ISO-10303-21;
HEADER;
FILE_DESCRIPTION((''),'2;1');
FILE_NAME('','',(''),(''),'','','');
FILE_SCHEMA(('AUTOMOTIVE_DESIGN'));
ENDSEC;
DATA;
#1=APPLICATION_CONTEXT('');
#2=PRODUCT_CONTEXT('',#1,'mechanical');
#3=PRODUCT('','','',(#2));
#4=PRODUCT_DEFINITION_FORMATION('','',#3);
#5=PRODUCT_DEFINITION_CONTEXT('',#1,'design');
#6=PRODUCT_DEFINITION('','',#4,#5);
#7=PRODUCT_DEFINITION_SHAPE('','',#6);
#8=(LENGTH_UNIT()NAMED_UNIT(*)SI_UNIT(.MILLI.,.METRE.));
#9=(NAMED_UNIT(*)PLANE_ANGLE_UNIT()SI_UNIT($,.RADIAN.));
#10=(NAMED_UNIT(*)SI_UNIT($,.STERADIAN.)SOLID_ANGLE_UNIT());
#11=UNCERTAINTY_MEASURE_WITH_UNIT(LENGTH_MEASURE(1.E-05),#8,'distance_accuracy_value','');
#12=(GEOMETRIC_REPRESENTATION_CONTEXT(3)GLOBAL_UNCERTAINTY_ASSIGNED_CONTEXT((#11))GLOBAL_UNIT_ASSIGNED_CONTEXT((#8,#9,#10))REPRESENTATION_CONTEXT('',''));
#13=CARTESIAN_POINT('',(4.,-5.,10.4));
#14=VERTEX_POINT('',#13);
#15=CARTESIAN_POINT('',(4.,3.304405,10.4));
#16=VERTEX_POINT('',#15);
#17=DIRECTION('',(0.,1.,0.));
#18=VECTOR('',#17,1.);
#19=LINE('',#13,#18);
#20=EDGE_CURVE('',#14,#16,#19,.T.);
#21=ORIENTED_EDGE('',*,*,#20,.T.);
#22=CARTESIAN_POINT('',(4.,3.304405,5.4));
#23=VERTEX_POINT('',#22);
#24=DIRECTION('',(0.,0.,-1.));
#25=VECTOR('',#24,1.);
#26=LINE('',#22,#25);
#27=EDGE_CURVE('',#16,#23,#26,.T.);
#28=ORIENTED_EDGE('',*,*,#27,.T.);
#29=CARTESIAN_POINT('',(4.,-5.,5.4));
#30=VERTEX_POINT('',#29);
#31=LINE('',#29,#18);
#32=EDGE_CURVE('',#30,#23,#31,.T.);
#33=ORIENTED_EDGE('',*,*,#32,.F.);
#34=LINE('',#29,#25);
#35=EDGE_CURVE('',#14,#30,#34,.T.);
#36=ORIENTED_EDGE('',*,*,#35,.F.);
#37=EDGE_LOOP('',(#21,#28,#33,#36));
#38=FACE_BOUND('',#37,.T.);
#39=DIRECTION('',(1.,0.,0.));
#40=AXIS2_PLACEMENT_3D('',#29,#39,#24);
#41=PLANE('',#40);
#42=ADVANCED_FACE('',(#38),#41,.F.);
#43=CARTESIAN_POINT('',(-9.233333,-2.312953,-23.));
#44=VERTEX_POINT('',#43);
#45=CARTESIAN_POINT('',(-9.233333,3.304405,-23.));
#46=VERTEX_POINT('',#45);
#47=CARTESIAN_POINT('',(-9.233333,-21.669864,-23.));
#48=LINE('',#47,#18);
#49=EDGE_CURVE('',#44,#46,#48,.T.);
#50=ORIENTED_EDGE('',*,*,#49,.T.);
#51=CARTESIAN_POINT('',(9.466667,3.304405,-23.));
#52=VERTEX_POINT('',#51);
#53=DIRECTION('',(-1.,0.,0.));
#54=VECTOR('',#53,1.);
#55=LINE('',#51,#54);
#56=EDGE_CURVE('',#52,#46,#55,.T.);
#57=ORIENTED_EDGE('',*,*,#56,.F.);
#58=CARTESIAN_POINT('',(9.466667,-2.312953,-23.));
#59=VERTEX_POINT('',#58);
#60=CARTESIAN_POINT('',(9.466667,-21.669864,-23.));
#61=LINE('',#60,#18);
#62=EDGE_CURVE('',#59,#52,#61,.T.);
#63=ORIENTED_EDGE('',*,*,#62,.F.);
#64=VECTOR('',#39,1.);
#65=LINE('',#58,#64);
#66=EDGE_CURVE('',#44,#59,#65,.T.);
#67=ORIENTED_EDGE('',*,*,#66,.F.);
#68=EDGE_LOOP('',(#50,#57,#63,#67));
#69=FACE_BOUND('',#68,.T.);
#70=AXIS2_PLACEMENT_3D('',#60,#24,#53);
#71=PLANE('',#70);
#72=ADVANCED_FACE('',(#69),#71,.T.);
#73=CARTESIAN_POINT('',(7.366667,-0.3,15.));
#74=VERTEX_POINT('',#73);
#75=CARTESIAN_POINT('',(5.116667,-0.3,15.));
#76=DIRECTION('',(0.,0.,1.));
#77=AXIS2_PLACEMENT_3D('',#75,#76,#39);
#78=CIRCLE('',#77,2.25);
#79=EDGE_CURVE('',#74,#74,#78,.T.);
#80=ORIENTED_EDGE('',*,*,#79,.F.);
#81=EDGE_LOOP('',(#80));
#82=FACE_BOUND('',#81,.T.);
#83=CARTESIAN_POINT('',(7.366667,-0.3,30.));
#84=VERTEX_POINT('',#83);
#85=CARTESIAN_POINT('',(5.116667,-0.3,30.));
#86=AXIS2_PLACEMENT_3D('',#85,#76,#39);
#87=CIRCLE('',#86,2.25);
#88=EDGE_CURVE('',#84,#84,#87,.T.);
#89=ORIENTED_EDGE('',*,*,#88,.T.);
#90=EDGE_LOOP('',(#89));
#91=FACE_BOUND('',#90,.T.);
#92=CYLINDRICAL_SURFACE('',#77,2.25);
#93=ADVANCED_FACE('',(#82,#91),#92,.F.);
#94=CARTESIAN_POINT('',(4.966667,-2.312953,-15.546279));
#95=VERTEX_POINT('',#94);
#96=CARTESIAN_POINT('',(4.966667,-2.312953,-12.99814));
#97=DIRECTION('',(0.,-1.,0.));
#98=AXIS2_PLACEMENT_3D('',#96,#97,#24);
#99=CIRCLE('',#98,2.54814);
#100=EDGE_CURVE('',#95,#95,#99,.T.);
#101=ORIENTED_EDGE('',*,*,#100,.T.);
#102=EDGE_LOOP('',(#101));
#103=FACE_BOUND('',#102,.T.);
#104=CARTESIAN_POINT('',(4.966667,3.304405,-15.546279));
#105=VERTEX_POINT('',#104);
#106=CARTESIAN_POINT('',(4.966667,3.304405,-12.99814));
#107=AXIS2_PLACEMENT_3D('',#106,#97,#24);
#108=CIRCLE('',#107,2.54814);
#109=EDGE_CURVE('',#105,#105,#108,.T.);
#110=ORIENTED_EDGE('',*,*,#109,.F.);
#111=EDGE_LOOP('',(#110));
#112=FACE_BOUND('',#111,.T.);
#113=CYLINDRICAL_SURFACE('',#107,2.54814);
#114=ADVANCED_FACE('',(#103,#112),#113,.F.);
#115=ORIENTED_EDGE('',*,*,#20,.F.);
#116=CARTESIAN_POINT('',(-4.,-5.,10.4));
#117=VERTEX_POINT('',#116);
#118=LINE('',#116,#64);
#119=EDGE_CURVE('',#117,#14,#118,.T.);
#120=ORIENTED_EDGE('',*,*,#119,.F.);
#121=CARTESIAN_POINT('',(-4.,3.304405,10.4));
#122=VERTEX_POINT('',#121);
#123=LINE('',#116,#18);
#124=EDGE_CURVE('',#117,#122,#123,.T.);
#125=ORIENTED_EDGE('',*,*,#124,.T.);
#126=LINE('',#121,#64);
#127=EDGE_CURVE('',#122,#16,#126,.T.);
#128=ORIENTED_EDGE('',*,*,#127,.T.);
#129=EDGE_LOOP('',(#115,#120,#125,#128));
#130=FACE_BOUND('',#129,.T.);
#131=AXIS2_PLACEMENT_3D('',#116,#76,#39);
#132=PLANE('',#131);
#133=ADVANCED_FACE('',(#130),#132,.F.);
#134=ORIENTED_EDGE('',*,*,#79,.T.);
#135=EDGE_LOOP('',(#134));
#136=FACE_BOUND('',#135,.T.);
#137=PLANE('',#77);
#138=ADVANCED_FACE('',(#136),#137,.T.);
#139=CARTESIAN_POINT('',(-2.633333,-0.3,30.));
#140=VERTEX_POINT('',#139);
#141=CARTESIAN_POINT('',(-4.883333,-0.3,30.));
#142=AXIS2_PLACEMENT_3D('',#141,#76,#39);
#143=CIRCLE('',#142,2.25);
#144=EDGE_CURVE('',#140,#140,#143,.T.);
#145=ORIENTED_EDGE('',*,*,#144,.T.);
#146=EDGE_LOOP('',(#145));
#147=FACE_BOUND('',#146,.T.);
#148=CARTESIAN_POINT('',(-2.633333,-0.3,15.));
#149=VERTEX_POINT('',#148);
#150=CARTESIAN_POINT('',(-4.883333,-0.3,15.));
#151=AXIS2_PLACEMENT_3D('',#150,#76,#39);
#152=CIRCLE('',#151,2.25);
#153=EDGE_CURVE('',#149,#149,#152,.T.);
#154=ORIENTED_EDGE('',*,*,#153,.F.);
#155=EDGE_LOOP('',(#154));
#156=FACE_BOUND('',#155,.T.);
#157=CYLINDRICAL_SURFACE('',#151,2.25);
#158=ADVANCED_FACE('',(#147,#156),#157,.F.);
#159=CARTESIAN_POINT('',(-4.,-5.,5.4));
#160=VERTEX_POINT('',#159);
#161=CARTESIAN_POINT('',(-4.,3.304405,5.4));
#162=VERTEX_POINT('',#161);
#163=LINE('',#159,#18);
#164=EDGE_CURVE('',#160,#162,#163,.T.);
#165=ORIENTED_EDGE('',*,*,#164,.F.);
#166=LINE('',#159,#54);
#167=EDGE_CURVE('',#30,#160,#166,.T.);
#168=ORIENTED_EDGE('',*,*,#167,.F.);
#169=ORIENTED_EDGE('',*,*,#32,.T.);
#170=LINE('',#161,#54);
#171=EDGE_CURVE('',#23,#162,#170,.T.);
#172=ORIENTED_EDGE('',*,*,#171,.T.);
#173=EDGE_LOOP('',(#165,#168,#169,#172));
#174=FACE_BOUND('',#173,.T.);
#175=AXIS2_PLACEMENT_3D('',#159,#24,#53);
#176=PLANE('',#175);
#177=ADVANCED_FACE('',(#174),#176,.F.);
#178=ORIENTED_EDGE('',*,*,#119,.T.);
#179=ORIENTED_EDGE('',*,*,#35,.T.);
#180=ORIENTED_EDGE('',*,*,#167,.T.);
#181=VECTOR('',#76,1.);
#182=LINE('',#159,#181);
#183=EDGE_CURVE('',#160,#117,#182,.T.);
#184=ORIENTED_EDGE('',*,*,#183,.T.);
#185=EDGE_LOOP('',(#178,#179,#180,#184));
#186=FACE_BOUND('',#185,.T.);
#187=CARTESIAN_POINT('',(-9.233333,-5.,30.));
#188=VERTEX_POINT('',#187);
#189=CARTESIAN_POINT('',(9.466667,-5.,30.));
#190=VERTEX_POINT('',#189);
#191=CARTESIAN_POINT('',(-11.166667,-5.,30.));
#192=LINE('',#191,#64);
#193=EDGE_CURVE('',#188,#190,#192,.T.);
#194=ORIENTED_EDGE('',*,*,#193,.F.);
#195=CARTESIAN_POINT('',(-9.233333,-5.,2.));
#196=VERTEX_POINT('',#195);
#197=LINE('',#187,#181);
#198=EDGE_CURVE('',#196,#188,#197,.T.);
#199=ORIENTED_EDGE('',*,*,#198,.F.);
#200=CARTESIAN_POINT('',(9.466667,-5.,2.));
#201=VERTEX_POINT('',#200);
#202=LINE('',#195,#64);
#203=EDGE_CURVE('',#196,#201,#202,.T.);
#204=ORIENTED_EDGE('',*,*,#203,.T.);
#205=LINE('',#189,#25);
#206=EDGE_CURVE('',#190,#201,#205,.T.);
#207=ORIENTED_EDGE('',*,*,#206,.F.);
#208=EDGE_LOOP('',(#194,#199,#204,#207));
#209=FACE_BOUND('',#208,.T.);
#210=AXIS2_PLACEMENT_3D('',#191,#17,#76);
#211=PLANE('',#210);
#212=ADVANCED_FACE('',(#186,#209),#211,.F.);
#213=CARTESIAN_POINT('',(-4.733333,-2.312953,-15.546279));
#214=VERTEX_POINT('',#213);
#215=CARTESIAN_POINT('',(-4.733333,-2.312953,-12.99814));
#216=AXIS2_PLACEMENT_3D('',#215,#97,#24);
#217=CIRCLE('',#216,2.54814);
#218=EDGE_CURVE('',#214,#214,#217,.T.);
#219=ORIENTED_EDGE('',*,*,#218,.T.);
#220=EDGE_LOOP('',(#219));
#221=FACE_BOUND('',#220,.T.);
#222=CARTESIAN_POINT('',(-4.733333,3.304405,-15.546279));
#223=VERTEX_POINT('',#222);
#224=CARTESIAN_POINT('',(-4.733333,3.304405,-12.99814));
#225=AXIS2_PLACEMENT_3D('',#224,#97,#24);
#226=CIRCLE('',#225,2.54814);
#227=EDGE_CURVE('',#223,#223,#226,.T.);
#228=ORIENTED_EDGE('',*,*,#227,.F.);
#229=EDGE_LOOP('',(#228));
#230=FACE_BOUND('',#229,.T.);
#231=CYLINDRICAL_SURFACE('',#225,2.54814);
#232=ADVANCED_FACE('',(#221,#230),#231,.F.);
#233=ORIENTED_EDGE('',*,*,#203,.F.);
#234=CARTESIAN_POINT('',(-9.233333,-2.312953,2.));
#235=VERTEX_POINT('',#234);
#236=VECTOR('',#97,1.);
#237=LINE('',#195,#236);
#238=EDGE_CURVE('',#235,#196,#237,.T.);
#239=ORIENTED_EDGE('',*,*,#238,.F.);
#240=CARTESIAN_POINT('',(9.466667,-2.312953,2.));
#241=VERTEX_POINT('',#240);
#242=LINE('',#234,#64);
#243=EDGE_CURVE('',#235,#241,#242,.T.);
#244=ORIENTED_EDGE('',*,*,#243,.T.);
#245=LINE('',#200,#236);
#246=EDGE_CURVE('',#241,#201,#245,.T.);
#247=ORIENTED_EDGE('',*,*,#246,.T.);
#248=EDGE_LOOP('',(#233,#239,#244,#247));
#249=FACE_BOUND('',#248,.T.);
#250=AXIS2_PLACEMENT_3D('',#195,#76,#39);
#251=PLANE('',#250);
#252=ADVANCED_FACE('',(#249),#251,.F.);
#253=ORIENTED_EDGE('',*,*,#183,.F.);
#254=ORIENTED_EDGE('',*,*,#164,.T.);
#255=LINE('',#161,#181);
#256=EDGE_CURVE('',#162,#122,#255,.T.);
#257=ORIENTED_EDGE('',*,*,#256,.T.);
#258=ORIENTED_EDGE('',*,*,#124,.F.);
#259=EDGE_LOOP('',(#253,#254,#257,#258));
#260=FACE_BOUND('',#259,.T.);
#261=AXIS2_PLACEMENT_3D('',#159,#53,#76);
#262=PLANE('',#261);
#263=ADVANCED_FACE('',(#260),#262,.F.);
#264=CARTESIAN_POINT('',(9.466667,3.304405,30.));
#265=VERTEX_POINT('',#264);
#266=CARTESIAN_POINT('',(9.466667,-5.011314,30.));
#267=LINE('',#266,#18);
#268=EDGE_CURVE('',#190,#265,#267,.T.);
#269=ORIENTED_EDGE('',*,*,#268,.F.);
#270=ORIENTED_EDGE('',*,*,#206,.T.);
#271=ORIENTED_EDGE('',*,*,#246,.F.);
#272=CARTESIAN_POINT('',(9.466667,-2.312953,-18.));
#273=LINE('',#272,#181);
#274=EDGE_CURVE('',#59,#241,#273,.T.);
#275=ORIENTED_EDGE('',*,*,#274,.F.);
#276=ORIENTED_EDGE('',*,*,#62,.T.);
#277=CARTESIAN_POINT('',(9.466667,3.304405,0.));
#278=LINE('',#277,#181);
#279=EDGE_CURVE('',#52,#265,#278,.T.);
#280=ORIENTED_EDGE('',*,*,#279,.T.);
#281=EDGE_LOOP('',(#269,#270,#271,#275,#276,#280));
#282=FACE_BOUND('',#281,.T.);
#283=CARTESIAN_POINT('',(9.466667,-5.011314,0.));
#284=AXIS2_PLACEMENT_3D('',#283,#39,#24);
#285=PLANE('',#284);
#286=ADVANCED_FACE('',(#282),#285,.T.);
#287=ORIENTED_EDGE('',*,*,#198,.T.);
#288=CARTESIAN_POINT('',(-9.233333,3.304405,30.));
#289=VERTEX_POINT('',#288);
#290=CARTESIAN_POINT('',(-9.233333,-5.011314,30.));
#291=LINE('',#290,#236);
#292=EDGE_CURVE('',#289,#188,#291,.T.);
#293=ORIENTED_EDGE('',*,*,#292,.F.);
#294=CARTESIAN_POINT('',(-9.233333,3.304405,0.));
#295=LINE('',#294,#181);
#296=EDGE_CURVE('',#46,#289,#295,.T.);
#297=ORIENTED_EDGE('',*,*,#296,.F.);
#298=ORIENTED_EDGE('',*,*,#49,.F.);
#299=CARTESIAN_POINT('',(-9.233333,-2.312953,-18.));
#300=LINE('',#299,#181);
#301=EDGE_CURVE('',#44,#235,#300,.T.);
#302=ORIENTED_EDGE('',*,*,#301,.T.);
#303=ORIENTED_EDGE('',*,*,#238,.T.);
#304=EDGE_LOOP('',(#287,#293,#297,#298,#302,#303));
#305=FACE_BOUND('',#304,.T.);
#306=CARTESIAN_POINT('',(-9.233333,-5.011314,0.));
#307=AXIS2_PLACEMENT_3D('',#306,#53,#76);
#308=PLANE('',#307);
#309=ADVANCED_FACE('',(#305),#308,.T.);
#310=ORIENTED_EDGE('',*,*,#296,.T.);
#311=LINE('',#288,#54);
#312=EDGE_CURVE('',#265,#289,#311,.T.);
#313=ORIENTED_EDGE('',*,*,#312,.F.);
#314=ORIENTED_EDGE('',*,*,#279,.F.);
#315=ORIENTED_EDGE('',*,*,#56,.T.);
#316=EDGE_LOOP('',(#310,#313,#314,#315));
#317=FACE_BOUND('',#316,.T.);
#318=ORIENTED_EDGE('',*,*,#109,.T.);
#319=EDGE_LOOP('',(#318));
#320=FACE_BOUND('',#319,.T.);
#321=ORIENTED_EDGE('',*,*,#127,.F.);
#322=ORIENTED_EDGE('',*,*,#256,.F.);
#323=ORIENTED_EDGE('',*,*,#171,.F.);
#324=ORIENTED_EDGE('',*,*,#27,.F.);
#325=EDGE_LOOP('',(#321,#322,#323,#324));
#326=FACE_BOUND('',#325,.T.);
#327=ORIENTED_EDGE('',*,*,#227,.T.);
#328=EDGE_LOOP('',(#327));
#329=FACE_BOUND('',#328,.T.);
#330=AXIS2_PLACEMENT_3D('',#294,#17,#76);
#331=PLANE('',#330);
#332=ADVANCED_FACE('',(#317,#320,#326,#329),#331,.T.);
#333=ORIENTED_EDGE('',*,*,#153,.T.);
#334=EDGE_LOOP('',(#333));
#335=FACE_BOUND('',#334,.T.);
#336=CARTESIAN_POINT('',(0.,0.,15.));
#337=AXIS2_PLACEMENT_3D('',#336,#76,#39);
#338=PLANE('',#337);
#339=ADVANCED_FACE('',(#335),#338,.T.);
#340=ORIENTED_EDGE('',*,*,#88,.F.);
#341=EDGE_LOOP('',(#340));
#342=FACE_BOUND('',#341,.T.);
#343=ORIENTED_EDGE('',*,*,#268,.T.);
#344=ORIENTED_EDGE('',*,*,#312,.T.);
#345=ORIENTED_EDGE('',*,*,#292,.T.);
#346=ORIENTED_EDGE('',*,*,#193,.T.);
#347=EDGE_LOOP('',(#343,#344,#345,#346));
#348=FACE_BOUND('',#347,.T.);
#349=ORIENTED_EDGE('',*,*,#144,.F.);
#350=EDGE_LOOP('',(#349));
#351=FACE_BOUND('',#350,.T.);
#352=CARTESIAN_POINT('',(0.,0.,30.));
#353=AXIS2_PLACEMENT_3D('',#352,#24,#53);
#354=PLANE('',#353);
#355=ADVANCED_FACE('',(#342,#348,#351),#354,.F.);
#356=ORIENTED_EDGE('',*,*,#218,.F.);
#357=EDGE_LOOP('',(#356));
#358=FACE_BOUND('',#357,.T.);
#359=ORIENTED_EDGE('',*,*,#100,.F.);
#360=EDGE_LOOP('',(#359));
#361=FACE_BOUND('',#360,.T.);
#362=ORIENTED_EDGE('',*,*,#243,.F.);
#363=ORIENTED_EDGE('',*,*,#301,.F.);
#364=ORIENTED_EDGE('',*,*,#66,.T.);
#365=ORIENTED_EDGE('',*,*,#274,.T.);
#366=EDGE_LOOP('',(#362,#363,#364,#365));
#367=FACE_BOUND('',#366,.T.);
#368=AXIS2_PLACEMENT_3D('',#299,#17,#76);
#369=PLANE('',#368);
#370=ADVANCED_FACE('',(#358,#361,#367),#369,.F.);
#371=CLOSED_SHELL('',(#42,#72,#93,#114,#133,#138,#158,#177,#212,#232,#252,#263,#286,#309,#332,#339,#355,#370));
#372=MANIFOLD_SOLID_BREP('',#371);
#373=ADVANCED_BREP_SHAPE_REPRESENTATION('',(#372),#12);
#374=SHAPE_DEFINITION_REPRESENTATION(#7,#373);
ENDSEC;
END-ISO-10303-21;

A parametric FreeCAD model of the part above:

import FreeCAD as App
import Part
import Sketcher

V = App.Vector


def add_polygon(sketch, points):
    """Adds a closed chain of lines whose ends are joined by coincident constraints."""
    first, n = sketch.GeometryCount, len(points)
    for a, b in zip(points, points[1:] + points[:1]):
        sketch.addGeometry(Part.LineSegment(App.Vector(*a, 0), App.Vector(*b, 0)), False)
    for i in range(n):
        sketch.addConstraint(Sketcher.Constraint("Coincident", first + i, 2, first + (i + 1) % n, 1))

doc = App.newDocument("Part")
body = doc.addObject("PartDesign::Body", "Body")

# Sketch on XY plane
sketch1 = body.newObject("Sketcher::SketchObject", "Sketch")
sketch1.AttachmentSupport = (doc.getObject("XY_Plane"), [""])
sketch1.MapMode = "FlatFace"
add_polygon(sketch1, [(-11, 5), (-11, -5), (11, -5), (11, 5)])  # lines 0-3
sketch1.addConstraint([
    Sketcher.Constraint("Vertical", 0),
    Sketcher.Constraint("Horizontal", 1),
    Sketcher.Constraint("Vertical", 2),
    Sketcher.Constraint("Horizontal", 3),
    Sketcher.Constraint("Symmetric", 0, 2, 2, 2, -1, 1),
    Sketcher.Constraint("DistanceY", 0, 2, 0, 1, 10.0),
    Sketcher.Constraint("DistanceX", 1, 1, 1, 2, 22.333333),
])
pad1 = body.newObject("PartDesign::Pad", "Pad")
pad1.Profile = sketch1
pad1.Length = 30

# Sketch on XZ plane
sketch2 = body.newObject("Sketcher::SketchObject", "Sketch001")
sketch2.AttachmentSupport = (doc.getObject("XZ_Plane"), [""])
sketch2.MapMode = "FlatFace"
sketch2.AttachmentOffset = App.Placement(V(0, 0, 5), App.Rotation())
add_polygon(sketch2, [(-11.2, 30), (-11.2, 0), (-10.1, 0), (-10.1, 30)])  # lines 0-3
sketch2.addConstraint([
    Sketcher.Constraint("Vertical", 0),
    Sketcher.Constraint("Horizontal", 1),
    Sketcher.Constraint("Vertical", 2),
    Sketcher.Constraint("Horizontal", 3),
    Sketcher.Constraint("PointOnObject", 0, 2, -1),
    Sketcher.Constraint("DistanceY", 0, 2, 0, 1, 30.0),
    Sketcher.Constraint("DistanceX", 1, 1, 1, 2, 1.083333),
    Sketcher.Constraint("DistanceX", 0, 2, -1, 1, 11.166667),
])
pocket1 = body.newObject("PartDesign::Pocket", "Pocket")
pocket1.Profile = sketch2
pocket1.Length = 30

# Sketch on XY plane
sketch3 = body.newObject("Sketcher::SketchObject", "Sketch002")
sketch3.AttachmentSupport = (doc.getObject("XY_Plane"), [""])
sketch3.MapMode = "FlatFace"
sketch3.AttachmentOffset = App.Placement(V(0, 0, 30), App.Rotation())
sketch3.addGeometry([
    Part.Circle(V(-4.9, -0.3, 0), V(0, 0, 1), 2.2),
    Part.Circle(V(5.1, -0.3, 0), V(0, 0, 1), 2.2),
], False)
sketch3.addConstraint([
    Sketcher.Constraint("Equal", 0, 1),
    Sketcher.Constraint("Horizontal", 0, 3, 1, 3),
    Sketcher.Constraint("Diameter", 0, 4.5),
    Sketcher.Constraint("DistanceX", 0, 3, 1, 3, 10.0),
    Sketcher.Constraint("DistanceY", 0, 3, -1, 1, 0.3),
    Sketcher.Constraint("DistanceX", 0, 3, -1, 1, 4.883333),
])
pocket2 = body.newObject("PartDesign::Pocket", "Pocket001")
pocket2.Profile = sketch3
pocket2.Length = 15

# Sketch on XY plane
sketch4 = body.newObject("Sketcher::SketchObject", "Sketch003")
sketch4.AttachmentSupport = (doc.getObject("XY_Plane"), [""])
sketch4.MapMode = "FlatFace"
sketch4.AttachmentOffset = App.Placement(V(0, 0, 30), App.Rotation())
add_polygon(sketch4, [(-15, 10), (-15, -10), (16, -10), (16, 10)])  # lines 0-3
add_polygon(sketch4, [(9, -5), (-9, -5), (-9, 3), (9, 3)])  # lines 4-7
sketch4.addConstraint([
    Sketcher.Constraint("Vertical", 0),
    Sketcher.Constraint("Horizontal", 1),
    Sketcher.Constraint("Vertical", 2),
    Sketcher.Constraint("Horizontal", 3),
    Sketcher.Constraint("Horizontal", 4),
    Sketcher.Constraint("Vertical", 5),
    Sketcher.Constraint("Horizontal", 6),
    Sketcher.Constraint("Vertical", 7),
    Sketcher.Constraint("DistanceX", 4, 2, 4, 1, 18.7),
    Sketcher.Constraint("DistanceX", 1, 1, 1, 2, 30.87),
    Sketcher.Constraint("DistanceY", 0, 2, 0, 1, 19.62),
    Sketcher.Constraint("DistanceY", 0, 2, -1, 1, 9.81),
    Sketcher.Constraint("DistanceX", 0, 2, -1, 1, 14.893),
    Sketcher.Constraint("DistanceY", 5, 1, 5, 2, 8.315719),
    Sketcher.Constraint("DistanceX", 4, 2, -1, 1, 9.233333),
    Sketcher.Constraint("DistanceY", 4, 2, -1, 1, 5.011314),
])
pocket3 = body.newObject("PartDesign::Pocket", "Pocket002")
pocket3.Profile = sketch4
pocket3.Length = 30

# Sketch on XY plane
sketch5 = body.newObject("Sketcher::SketchObject", "Sketch004")
sketch5.AttachmentSupport = (doc.getObject("XY_Plane"), [""])
sketch5.MapMode = "FlatFace"
add_polygon(sketch5, [(9, 3), (9, -5), (-9, -5), (-9, 3)])  # lines 0-3
sketch5.addConstraint([
    Sketcher.Constraint("Vertical", 0),
    Sketcher.Constraint("Horizontal", 1),
    Sketcher.Constraint("Vertical", 2),
    Sketcher.Constraint("Horizontal", 3),
    Sketcher.Constraint("DistanceX", 1, 2, 1, 1, 18.7),
    Sketcher.Constraint("DistanceY", 0, 2, -1, 1, 5.0),
    Sketcher.Constraint("DistanceY", 0, 2, 0, 1, 8.304405),
    Sketcher.Constraint("DistanceX", -1, 1, 0, 2, 9.466667),
])
pad2 = body.newObject("PartDesign::Pad", "Pad001")
pad2.Profile = sketch5
pad2.Length = 18
pad2.Reversed = True

# Sketch on YZ plane
sketch6 = body.newObject("Sketcher::SketchObject", "Sketch005")
sketch6.AttachmentSupport = (doc.getObject("YZ_Plane"), [""])
sketch6.MapMode = "FlatFace"
sketch6.AttachmentOffset = App.Placement(V(0, 0, 9.466667), App.Rotation())
add_polygon(sketch6, [(-2.3, 2), (-5, 2), (-5, -18), (-2.3, -18)])  # lines 0-3
sketch6.addConstraint([
    Sketcher.Constraint("Horizontal", 0),
    Sketcher.Constraint("Vertical", 1),
    Sketcher.Constraint("Horizontal", 2),
    Sketcher.Constraint("Vertical", 3),
    Sketcher.Constraint("DistanceY", 1, 2, 1, 1, 20.0),
    Sketcher.Constraint("DistanceX", 0, 2, -1, 1, 5.0),
    Sketcher.Constraint("DistanceY", -1, 1, 0, 2, 2.0),
    Sketcher.Constraint("DistanceX", 0, 2, 0, 1, 2.687047),
])
pocket4 = body.newObject("PartDesign::Pocket", "Pocket003")
pocket4.Profile = sketch6
pocket4.Type = "ThroughAll"

# Sketch on XZ plane
sketch7 = body.newObject("Sketcher::SketchObject", "Sketch006")
sketch7.AttachmentSupport = (doc.getObject("XZ_Plane"), [""])
sketch7.MapMode = "FlatFace"
sketch7.AttachmentOffset = App.Placement(V(0, 0, 2.312953), App.Rotation())
sketch7.addGeometry([
    Part.Circle(V(-4.7, -13, 0), V(0, 0, 1), 2.5),
    Part.Circle(V(5, -13, 0), V(0, 0, 1), 2.5),
], False)
sketch7.addConstraint([
    Sketcher.Constraint("Equal", 0, 1),
    Sketcher.Constraint("Horizontal", 0, 3, 1, 3),
    Sketcher.Constraint("DistanceX", 0, 3, 1, 3, 9.7),
    Sketcher.Constraint("Diameter", 0, 5.096279),
    Sketcher.Constraint("DistanceY", 0, 3, -1, 1, 12.99814),
    Sketcher.Constraint("DistanceX", 0, 3, -1, 1, 4.733333),
])
pocket5 = body.newObject("PartDesign::Pocket", "Pocket004")
pocket5.Profile = sketch7
pocket5.Type = "ThroughAll"

# Sketch on XZ plane
sketch8 = body.newObject("Sketcher::SketchObject", "Sketch007")
sketch8.AttachmentSupport = (doc.getObject("XZ_Plane"), [""])
sketch8.MapMode = "FlatFace"
sketch8.AttachmentOffset = App.Placement(V(0, 0, -3.304405), App.Rotation())
add_polygon(sketch8, [(-9, -23), (-9, -18), (9, -18), (9, -23)])  # lines 0-3
sketch8.addConstraint([
    Sketcher.Constraint("Vertical", 0),
    Sketcher.Constraint("Horizontal", 1),
    Sketcher.Constraint("Vertical", 2),
    Sketcher.Constraint("Horizontal", 3),
    Sketcher.Constraint("DistanceY", 0, 1, 0, 2, 5.0),
    Sketcher.Constraint("DistanceX", 1, 1, 1, 2, 18.7),
    Sketcher.Constraint("DistanceY", 0, 2, -1, 1, 18.0),
    Sketcher.Constraint("DistanceX", 0, 2, -1, 1, 9.233333),
])
pad3 = body.newObject("PartDesign::Pad", "Pad002")
pad3.Profile = sketch8
pad3.Length = 5.617359

# Sketch on XZ plane
sketch9 = body.newObject("Sketcher::SketchObject", "Sketch008")
sketch9.AttachmentSupport = (doc.getObject("XZ_Plane"), [""])
sketch9.MapMode = "FlatFace"
sketch9.AttachmentOffset = App.Placement(V(0, 0, -3.304405), App.Rotation())
add_polygon(sketch9, [(-4, 5), (-4, 10), (4, 10), (4, 5)])  # lines 0-3
sketch9.addConstraint([
    Sketcher.Constraint("Vertical", 0),
    Sketcher.Constraint("Horizontal", 1),
    Sketcher.Constraint("Vertical", 2),
    Sketcher.Constraint("Horizontal", 3),
    Sketcher.Constraint("DistanceX", 1, 1, 1, 2, 8.0),
    Sketcher.Constraint("DistanceY", 0, 1, 0, 2, 5.0),
    Sketcher.Constraint("DistanceX", 0, 2, -1, 1, 4.0),
    Sketcher.Constraint("DistanceY", -1, 1, 0, 2, 10.4),
])
pocket6 = body.newObject("PartDesign::Pocket", "Pocket005")
pocket6.Profile = sketch9
pocket6.Type = "ThroughAll"
pocket6.Reversed = True

doc.recompute()
